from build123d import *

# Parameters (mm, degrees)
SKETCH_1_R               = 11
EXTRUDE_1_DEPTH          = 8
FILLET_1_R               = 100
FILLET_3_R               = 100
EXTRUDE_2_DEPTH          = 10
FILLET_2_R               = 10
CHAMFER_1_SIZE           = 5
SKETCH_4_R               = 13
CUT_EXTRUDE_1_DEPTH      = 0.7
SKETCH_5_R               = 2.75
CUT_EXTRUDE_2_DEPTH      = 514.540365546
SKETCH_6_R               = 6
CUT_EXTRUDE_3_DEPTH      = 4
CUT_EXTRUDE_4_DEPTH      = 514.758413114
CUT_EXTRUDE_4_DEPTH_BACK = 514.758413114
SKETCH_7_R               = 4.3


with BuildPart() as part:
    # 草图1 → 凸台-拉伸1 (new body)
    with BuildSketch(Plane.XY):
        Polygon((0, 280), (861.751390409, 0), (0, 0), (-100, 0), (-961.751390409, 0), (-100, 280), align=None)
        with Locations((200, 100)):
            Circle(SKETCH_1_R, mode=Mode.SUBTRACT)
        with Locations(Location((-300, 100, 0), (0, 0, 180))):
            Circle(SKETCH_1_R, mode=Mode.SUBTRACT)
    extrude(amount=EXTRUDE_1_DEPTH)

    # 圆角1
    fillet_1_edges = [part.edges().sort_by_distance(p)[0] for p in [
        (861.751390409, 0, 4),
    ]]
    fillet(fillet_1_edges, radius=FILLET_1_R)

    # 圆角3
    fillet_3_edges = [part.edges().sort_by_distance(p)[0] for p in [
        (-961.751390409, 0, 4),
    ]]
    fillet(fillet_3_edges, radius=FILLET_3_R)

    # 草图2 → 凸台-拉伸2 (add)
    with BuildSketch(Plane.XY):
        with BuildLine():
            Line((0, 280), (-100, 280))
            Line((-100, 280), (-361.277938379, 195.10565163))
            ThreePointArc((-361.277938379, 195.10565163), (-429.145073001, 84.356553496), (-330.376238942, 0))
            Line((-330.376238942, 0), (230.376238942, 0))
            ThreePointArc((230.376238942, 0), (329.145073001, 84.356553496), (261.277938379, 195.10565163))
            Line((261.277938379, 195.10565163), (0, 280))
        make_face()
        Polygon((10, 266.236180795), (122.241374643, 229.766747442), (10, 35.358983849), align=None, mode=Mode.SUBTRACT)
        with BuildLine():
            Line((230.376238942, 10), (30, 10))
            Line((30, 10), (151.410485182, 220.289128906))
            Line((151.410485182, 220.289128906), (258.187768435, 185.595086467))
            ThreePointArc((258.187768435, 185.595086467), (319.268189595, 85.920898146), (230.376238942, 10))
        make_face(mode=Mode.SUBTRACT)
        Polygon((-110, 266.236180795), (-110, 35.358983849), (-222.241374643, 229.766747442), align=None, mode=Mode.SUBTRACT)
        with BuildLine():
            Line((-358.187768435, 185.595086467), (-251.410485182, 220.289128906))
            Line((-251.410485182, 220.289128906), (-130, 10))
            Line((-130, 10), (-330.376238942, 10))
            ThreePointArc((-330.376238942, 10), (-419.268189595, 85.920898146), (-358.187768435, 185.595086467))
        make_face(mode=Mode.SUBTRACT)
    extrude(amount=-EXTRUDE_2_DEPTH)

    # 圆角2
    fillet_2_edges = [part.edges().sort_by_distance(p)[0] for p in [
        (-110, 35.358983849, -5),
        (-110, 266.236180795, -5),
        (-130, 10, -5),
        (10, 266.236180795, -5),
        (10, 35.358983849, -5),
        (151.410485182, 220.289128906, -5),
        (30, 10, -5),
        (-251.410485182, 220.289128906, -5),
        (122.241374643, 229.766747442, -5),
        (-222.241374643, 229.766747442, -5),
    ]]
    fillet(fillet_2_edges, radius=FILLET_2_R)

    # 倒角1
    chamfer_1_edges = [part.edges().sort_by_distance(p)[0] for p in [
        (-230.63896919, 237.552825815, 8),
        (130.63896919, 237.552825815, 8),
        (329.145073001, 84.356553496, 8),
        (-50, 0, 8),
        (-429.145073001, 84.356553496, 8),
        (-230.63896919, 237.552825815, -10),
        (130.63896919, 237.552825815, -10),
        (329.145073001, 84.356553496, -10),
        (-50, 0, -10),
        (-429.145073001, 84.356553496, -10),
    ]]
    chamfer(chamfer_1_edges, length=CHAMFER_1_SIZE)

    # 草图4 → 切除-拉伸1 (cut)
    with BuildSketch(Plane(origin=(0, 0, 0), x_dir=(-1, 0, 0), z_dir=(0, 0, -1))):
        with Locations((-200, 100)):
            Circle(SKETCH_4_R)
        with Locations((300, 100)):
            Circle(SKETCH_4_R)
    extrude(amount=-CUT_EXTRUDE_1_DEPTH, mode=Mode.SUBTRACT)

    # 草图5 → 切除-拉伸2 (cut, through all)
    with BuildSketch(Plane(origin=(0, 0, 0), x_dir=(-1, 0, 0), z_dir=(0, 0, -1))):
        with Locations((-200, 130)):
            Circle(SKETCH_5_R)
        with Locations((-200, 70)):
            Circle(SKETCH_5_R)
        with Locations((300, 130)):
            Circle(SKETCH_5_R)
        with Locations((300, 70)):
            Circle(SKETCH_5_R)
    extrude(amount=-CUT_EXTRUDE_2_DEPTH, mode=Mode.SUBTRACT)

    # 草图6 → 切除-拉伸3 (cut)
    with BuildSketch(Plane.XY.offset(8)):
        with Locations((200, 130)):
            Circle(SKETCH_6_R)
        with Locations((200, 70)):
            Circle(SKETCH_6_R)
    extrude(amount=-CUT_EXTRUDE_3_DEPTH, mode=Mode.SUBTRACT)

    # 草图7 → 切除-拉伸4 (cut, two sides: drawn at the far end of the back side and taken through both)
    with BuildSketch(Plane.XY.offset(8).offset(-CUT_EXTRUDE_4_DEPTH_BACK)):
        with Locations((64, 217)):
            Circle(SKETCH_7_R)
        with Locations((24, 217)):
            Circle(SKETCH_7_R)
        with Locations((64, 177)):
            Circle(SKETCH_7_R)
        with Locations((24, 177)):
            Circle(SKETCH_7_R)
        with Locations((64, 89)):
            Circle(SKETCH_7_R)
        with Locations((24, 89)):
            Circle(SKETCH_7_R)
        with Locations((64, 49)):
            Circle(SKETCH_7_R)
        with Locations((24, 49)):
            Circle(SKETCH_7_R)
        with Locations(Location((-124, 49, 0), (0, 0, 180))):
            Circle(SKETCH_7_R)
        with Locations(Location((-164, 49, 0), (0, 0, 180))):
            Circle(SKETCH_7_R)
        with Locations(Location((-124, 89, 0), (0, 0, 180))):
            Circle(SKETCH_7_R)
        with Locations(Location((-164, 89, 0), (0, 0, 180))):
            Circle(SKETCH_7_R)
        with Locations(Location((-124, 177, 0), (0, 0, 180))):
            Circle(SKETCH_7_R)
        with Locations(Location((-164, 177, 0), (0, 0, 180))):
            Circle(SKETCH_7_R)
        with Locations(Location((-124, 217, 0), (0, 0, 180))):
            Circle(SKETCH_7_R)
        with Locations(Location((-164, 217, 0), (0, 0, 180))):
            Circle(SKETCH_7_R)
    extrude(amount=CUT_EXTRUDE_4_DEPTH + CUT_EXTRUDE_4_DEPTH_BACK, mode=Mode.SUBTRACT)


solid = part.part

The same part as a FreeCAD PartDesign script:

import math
import FreeCAD as App
import Part
import Sketcher
Q = App.Units.Quantity


def edges_at(feature, points):
    """Names of the edges that pass closest to the given points."""
    edges = feature.Shape.Edges
    near = lambda p: min(range(len(edges)), key=lambda i: edges[i].distToShape(Part.Vertex(*p))[0])
    return sorted({f"Edge{near(p) + 1}" for p in points})


def add_polygon(sketch, points):
    """Adds a closed chain of lines whose ends are joined by coincident constraints."""
    first, n = sketch.GeometryCount, len(points)
    for a, b in zip(points, points[1:] + points[:1]):
        sketch.addGeometry(Part.LineSegment(App.Vector(*a, 0), App.Vector(*b, 0)), False)
    for i in range(n):
        sketch.addConstraint(Sketcher.Constraint("Coincident", first + i, 2, first + (i + 1) % n, 1))

doc = App.newDocument("Part")
params = doc.addObject("Spreadsheet::Sheet", "Params")
for row, (alias, value) in enumerate([
    ("sketch1_diameter", "22 mm"),
    ("sketch1_width", "100 mm"),
    ("pad1_length", "8 mm"),
    ("fillet_radius", "100 mm"),
    ("fillet2_radius", "100 mm"),
    ("sketch2_radius", "100 mm"),
    ("sketch2_radius2", "90 mm"),
    ("sketch2_width", "100 mm"),
    ("pad2_length", "10 mm"),
    ("fillet3_radius", "10 mm"),
    ("chamfer_size", "5 mm"),
    ("sketch3_diameter", "26 mm"),
    ("pocket1_length", "0.7 mm"),
    ("sketch4_diameter", "5.5 mm"),
    ("sketch5_diameter", "12 mm"),
    ("pocket3_length", "4 mm"),
    ("sketch6_diameter", "8.6 mm"),
], start=1):
    params.set(f"A{row}", alias)
    params.set(f"B{row}", "=" + value)
    params.setAlias(f"B{row}", alias)

body = doc.addObject("PartDesign::Body", "Body")

# Sketch on XY plane
sketch1 = body.newObject("Sketcher::SketchObject", "Sketch")
sketch1.AttachmentSupport = (doc.getObject("XY_Plane"), [""])
sketch1.MapMode = "FlatFace"
add_polygon(sketch1, [(862, 0), (0, 280), (-100, 280), (-962, 0)])  # lines 0-3
sketch1.addGeometry(Part.Circle(App.Vector(200, 100, 0), App.Vector(0, 0, 1), 11), False)  # 4
sketch1.addGeometry(Part.Circle(App.Vector(-300, 100, 0), App.Vector(0, 0, 1), 11), False)  # 5
sketch1.addConstraint(Sketcher.Constraint("Horizontal", 1))
sketch1.addConstraint(Sketcher.Constraint("Horizontal", 3))
sketch1.addConstraint(Sketcher.Constraint("Equal", 4, 5))
sketch1.addConstraint(Sketcher.Constraint("PointOnObject", 0, 2, -2))
sketch1.addConstraint(Sketcher.Constraint("PointOnObject", 2, 2, -1))
sketch1.addConstraint(Sketcher.Constraint("Horizontal", 4, 3, 5, 3))
sketch1.addConstraint(Sketcher.Constraint("Equal", 0, 2))
sketch1.addConstraint(Sketcher.Constraint("Diameter", 4, 22.0))
sketch1.addConstraint(Sketcher.Constraint("DistanceX", 1, 2, 1, 1, 100.0))
sketch1.addConstraint(Sketcher.Constraint("Angle", 0, Q("162 deg")))
sketch1.addConstraint(Sketcher.Constraint("DistanceX", -1, 1, 4, 3, 200.0))
sketch1.addConstraint(Sketcher.Constraint("DistanceY", -1, 1, 4, 3, 100.0))
sketch1.addConstraint(Sketcher.Constraint("DistanceX", 5, 3, -1, 1, 300.0))
sketch1.addConstraint(Sketcher.Constraint("DistanceY", -1, 1, 0, 2, 280.0))
sketch1.setExpression("Constraints[11]", "Params.sketch1_diameter")
sketch1.setExpression("Constraints[12]", "Params.sketch1_width")
pad1 = body.newObject("PartDesign::Pad", "Pad")
pad1.Profile = sketch1
pad1.setExpression("Length", "Params.pad1_length")
doc.recompute()

fillet = body.newObject("PartDesign::Fillet", "Fillet")
fillet.Base = (pad1, edges_at(pad1, [(861.751, 0, 4)]))
fillet.setExpression("Radius", "Params.fillet_radius")
doc.recompute()

fillet2 = body.newObject("PartDesign::Fillet", "Fillet001")
fillet2.Base = (fillet, edges_at(fillet, [(-961.751, 0, 4)]))
fillet2.setExpression("Radius", "Params.fillet2_radius")

# Sketch on XY plane
sketch2 = body.newObject("Sketcher::SketchObject", "Sketch001")
sketch2.AttachmentSupport = (doc.getObject("XY_Plane"), [""])
sketch2.MapMode = "FlatFace"
sketch2.addGeometry(Part.LineSegment(App.Vector(0, 280, 0), App.Vector(-100, 280, 0)), False)  # 0
sketch2.addGeometry(Part.LineSegment(App.Vector(-100, 280, 0), App.Vector(-361, 195, 0)), False)  # 1
sketch2.addGeometry(Part.ArcOfCircle(Part.Circle(App.Vector(-330, 100, 0), App.Vector(0, 0, 1), 100), math.radians(108), math.radians(270)), False)  # 2
sketch2.addGeometry(Part.LineSegment(App.Vector(-330, 0, 0), App.Vector(230, 0, 0)), False)  # 3
sketch2.addGeometry(Part.ArcOfCircle(Part.Circle(App.Vector(230, 100, 0), App.Vector(0, 0, 1), 100), math.radians(-90), math.radians(72)), False)  # 4
sketch2.addGeometry(Part.LineSegment(App.Vector(261, 195, 0), App.Vector(0, 280, 0)), False)  # 5
sketch2.addGeometry(Part.ArcOfCircle(Part.Circle(App.Vector(-330, 100, 0), App.Vector(0, 0, 1), 90), math.radians(108), math.radians(270)), False)  # 6
sketch2.addGeometry(Part.LineSegment(App.Vector(-358, 186, 0), App.Vector(-251, 220, 0)), False)  # 7
sketch2.addGeometry(Part.LineSegment(App.Vector(-251, 220, 0), App.Vector(-130, 10, 0)), False)  # 8
sketch2.addGeometry(Part.LineSegment(App.Vector(-130, 10, 0), App.Vector(-330, 10, 0)), False)  # 9
sketch2.addGeometry(Part.ArcOfCircle(Part.Circle(App.Vector(230, 100, 0), App.Vector(0, 0, 1), 90), math.radians(-90), math.radians(72)), False)  # 10
sketch2.addGeometry(Part.LineSegment(App.Vector(230, 10, 0), App.Vector(30, 10, 0)), False)  # 11
sketch2.addGeometry(Part.LineSegment(App.Vector(30, 10, 0), App.Vector(151, 220, 0)), False)  # 12
sketch2.addGeometry(Part.LineSegment(App.Vector(151, 220, 0), App.Vector(258, 186, 0)), False)  # 13
add_polygon(sketch2, [(-222, 230), (-110, 266), (-110, 35)])  # lines 14-16
add_polygon(sketch2, [(10, 35), (10, 266), (122, 230)])  # lines 17-19
sketch2.addConstraint(Sketcher.Constraint("Coincident", 0, 2, 1, 1))
sketch2.addConstraint(Sketcher.Constraint("Tangent", 1, 2, 2, 1))
sketch2.addConstraint(Sketcher.Constraint("Tangent", 2, 2, 3, 1))
sketch2.addConstraint(Sketcher.Constraint("Tangent", 3, 2, 4, 1))
sketch2.addConstraint(Sketcher.Constraint("Tangent", 4, 2, 5, 1))
sketch2.addConstraint(Sketcher.Constraint("Coincident", 5, 2, 0, 1))
sketch2.addConstraint(Sketcher.Constraint("Tangent", 6, 1, 7, 1))
sketch2.addConstraint(Sketcher.Constraint("Coincident", 7, 2, 8, 1))
sketch2.addConstraint(Sketcher.Constraint("Coincident", 8, 2, 9, 1))
sketch2.addConstraint(Sketcher.Constraint("Tangent", 9, 2, 6, 2))
sketch2.addConstraint(Sketcher.Constraint("Tangent", 10, 1, 11, 1))
sketch2.addConstraint(Sketcher.Constraint("Coincident", 11, 2, 12, 1))
sketch2.addConstraint(Sketcher.Constraint("Coincident", 12, 2, 13, 1))
sketch2.addConstraint(Sketcher.Constraint("Tangent", 13, 2, 10, 2))
sketch2.addConstraint(Sketcher.Constraint("Horizontal", 0))
sketch2.addConstraint(Sketcher.Constraint("Horizontal", 3))
sketch2.addConstraint(Sketcher.Constraint("Horizontal", 9))
sketch2.addConstraint(Sketcher.Constraint("Horizontal", 11))
sketch2.addConstraint(Sketcher.Constraint("Vertical", 15))
sketch2.addConstraint(Sketcher.Constraint("Vertical", 17))
sketch2.addConstraint(Sketcher.Constraint("Coincident", 6, 3, 2, 3))
sketch2.addConstraint(Sketcher.Constraint("Coincident", 10, 3, 4, 3))
sketch2.addConstraint(Sketcher.Constraint("Equal", 2, 4))
sketch2.addConstraint(Sketcher.Constraint("Equal", 6, 10))
sketch2.addConstraint(Sketcher.Constraint("PointOnObject", 2, 2, -1))
sketch2.addConstraint(Sketcher.Constraint("PointOnObject", 5, 2, -2))
sketch2.addConstraint(Sketcher.Constraint("Parallel", 1, 7))
sketch2.addConstraint(Sketcher.Constraint("Parallel", 5, 13))
sketch2.addConstraint(Sketcher.Constraint("Parallel", 7, 14))
sketch2.addConstraint(Sketcher.Constraint("Parallel", 8, 16))
sketch2.addConstraint(Sketcher.Constraint("Parallel", 13, 18))
sketch2.addConstraint(Sketcher.Constraint("Parallel", 12, 19))
sketch2.addConstraint(Sketcher.Constraint("Horizontal", 7, 2, 12, 2))
sketch2.addConstraint(Sketcher.Constraint("Horizontal", 14, 2, 17, 2))
sketch2.addConstraint(Sketcher.Constraint("Horizontal", 16, 2, 18, 2))
sketch2.addConstraint(Sketcher.Constraint("Horizontal", 15, 2, 19, 2))
sketch2.addConstraint(Sketcher.Constraint("Equal", 9, 11))
sketch2.addConstraint(Sketcher.Constraint("Radius", 2, 100.0))
sketch2.addConstraint(Sketcher.Constraint("Radius", 6, 90.0))
sketch2.addConstraint(Sketcher.Constraint("DistanceX", 0, 2, 0, 1, 100.0))
sketch2.addConstraint(Sketcher.Constraint("Angle", 1, Q("-162 deg")))
sketch2.addConstraint(Sketcher.Constraint("Angle", 8, Q("-60 deg")))
sketch2.addConstraint(Sketcher.Constraint("DistanceY", -1, 1, 0, 2, 280.0))
sketch2.addConstraint(Sketcher.Constraint("DistanceX", 8, 2, -1, 1, 130.0))
sketch2.addConstraint(Sketcher.Constraint("DistanceX", 14, 2, -1, 1, 110.0))
sketch2.addConstraint(Sketcher.Constraint("DistanceX", -1, 1, 17, 2, 10.0))
sketch2.addConstraint(Sketcher.Constraint("Distance", 16, 224.482749))
sketch2.addConstraint(Sketcher.Constraint("DistanceY", -1, 1, 14, 2, 266.236181))
sketch2.setExpression("Constraints[43]", "Params.sketch2_radius")
sketch2.setExpression("Constraints[44]", "Params.sketch2_radius2")
sketch2.setExpression("Constraints[45]", "Params.sketch2_width")
pad2 = body.newObject("PartDesign::Pad", "Pad001")
pad2.Profile = sketch2
pad2.setExpression("Length", "Params.pad2_length")
pad2.Reversed = True
doc.recompute()

fillet3 = body.newObject("PartDesign::Fillet", "Fillet002")
fillet3.Base = (pad2, edges_at(pad2, [
    (-110, 35.359, -5),
    (-110, 266.236, -5),
    (-130, 10, -5),
    (10, 266.236, -5),
    (10, 35.359, -5),
    (151.41, 220.289, -5),
    (30, 10, -5),
    (-251.41, 220.289, -5),
    (122.241, 229.767, -5),
    (-222.241, 229.767, -5),
]))
fillet3.setExpression("Radius", "Params.fillet3_radius")
doc.recompute()

chamfer = body.newObject("PartDesign::Chamfer", "Chamfer")
chamfer.Base = (fillet3, edges_at(fillet3, [
    (-230.639, 237.553, 8),
    (130.639, 237.553, 8),
    (329.145, 84.357, 8),
    (-50, 0, 8),
    (-429.145, 84.357, 8),
    (-230.639, 237.553, -10),
    (130.639, 237.553, -10),
    (329.145, 84.357, -10),
    (-50, 0, -10),
    (-429.145, 84.357, -10),
]))
chamfer.setExpression("Size", "Params.chamfer_size")

# Sketch on XY plane
sketch3 = body.newObject("Sketcher::SketchObject", "Sketch002")
sketch3.AttachmentSupport = (doc.getObject("XY_Plane"), [""])
sketch3.MapMode = "FlatFace"
sketch3.addGeometry(Part.Circle(App.Vector(200, 100, 0), App.Vector(0, 0, 1), 13), False)
sketch3.addGeometry(Part.Circle(App.Vector(-300, 100, 0), App.Vector(0, 0, 1), 13), False)
sketch3.addConstraint(Sketcher.Constraint("Equal", 0, 1))
sketch3.addConstraint(Sketcher.Constraint("Horizontal", 0, 3, 1, 3))
sketch3.addConstraint(Sketcher.Constraint("Diameter", 0, 26.0))
sketch3.addConstraint(Sketcher.Constraint("DistanceX", -1, 1, 0, 3, 200.0))
sketch3.addConstraint(Sketcher.Constraint("DistanceY", -1, 1, 0, 3, 100.0))
sketch3.addConstraint(Sketcher.Constraint("DistanceX", 1, 3, -1, 1, 300.0))
sketch3.setExpression("Constraints[2]", "Params.sketch3_diameter")
pocket1 = body.newObject("PartDesign::Pocket", "Pocket")
pocket1.Profile = sketch3
pocket1.setExpression("Length", "Params.pocket1_length")
pocket1.Reversed = True

# Sketch on XY plane
sketch4 = body.newObject("Sketcher::SketchObject", "Sketch003")
sketch4.AttachmentSupport = (doc.getObject("XY_Plane"), [""])
sketch4.MapMode = "FlatFace"
sketch4.addGeometry(Part.Circle(App.Vector(200, 130, 0), App.Vector(0, 0, 1), 2.8), False)
sketch4.addGeometry(Part.Circle(App.Vector(200, 70, 0), App.Vector(0, 0, 1), 2.8), False)
sketch4.addGeometry(Part.Circle(App.Vector(-300, 130, 0), App.Vector(0, 0, 1), 2.8), False)
sketch4.addGeometry(Part.Circle(App.Vector(-300, 70, 0), App.Vector(0, 0, 1), 2.8), False)
sketch4.addConstraint(Sketcher.Constraint("Equal", 0, 1))
sketch4.addConstraint(Sketcher.Constraint("Equal", 1, 2))
sketch4.addConstraint(Sketcher.Constraint("Equal", 2, 3))
sketch4.addConstraint(Sketcher.Constraint("Horizontal", 0, 3, 2, 3))
sketch4.addConstraint(Sketcher.Constraint("Horizontal", 1, 3, 3, 3))
sketch4.addConstraint(Sketcher.Constraint("Vertical", 0, 3, 1, 3))
sketch4.addConstraint(Sketcher.Constraint("Vertical", 2, 3, 3, 3))
sketch4.addConstraint(Sketcher.Constraint("Diameter", 0, 5.5))
sketch4.addConstraint(Sketcher.Constraint("DistanceX", -1, 1, 0, 3, 200.0))
sketch4.addConstraint(Sketcher.Constraint("DistanceY", -1, 1, 0, 3, 130.0))
sketch4.addConstraint(Sketcher.Constraint("DistanceY", -1, 1, 1, 3, 70.0))
sketch4.addConstraint(Sketcher.Constraint("DistanceX", 2, 3, -1, 1, 300.0))
sketch4.setExpression("Constraints[7]", "Params.sketch4_diameter")
pocket2 = body.newObject("PartDesign::Pocket", "Pocket001")
pocket2.Profile = sketch4
pocket2.Type = "ThroughAll"
pocket2.Reversed = True

# Sketch on XY plane
sketch5 = body.newObject("Sketcher::SketchObject", "Sketch004")
sketch5.AttachmentSupport = (doc.getObject("XY_Plane"), [""])
sketch5.MapMode = "FlatFace"
sketch5.AttachmentOffset = App.Placement(App.Vector(0, 0, 8), App.Rotation())
sketch5.addGeometry(Part.Circle(App.Vector(200, 130, 0), App.Vector(0, 0, 1), 6), False)
sketch5.addGeometry(Part.Circle(App.Vector(200, 70, 0), App.Vector(0, 0, 1), 6), False)
sketch5.addConstraint(Sketcher.Constraint("Equal", 0, 1))
sketch5.addConstraint(Sketcher.Constraint("Vertical", 0, 3, 1, 3))
sketch5.addConstraint(Sketcher.Constraint("Diameter", 0, 12.0))
sketch5.addConstraint(Sketcher.Constraint("DistanceX", -1, 1, 0, 3, 200.0))
sketch5.addConstraint(Sketcher.Constraint("DistanceY", -1, 1, 0, 3, 130.0))
sketch5.addConstraint(Sketcher.Constraint("DistanceY", -1, 1, 1, 3, 70.0))
sketch5.setExpression("Constraints[2]", "Params.sketch5_diameter")
pocket3 = body.newObject("PartDesign::Pocket", "Pocket002")
pocket3.Profile = sketch5
pocket3.setExpression("Length", "Params.pocket3_length")

# Sketch on XY plane
sketch6 = body.newObject("Sketcher::SketchObject", "Sketch005")
sketch6.AttachmentSupport = (doc.getObject("XY_Plane"), [""])
sketch6.MapMode = "FlatFace"
sketch6.AttachmentOffset = App.Placement(App.Vector(0, 0, 8), App.Rotation())
sketch6.addGeometry(Part.Circle(App.Vector(64, 217, 0), App.Vector(0, 0, 1), 4.3), False)
sketch6.addGeometry(Part.Circle(App.Vector(24, 217, 0), App.Vector(0, 0, 1), 4.3), False)
sketch6.addGeometry(Part.Circle(App.Vector(64, 177, 0), App.Vector(0, 0, 1), 4.3), False)
sketch6.addGeometry(Part.Circle(App.Vector(24, 177, 0), App.Vector(0, 0, 1), 4.3), False)
sketch6.addGeometry(Part.Circle(App.Vector(64, 89, 0), App.Vector(0, 0, 1), 4.3), False)
sketch6.addGeometry(Part.Circle(App.Vector(24, 89, 0), App.Vector(0, 0, 1), 4.3), False)
sketch6.addGeometry(Part.Circle(App.Vector(64, 49, 0), App.Vector(0, 0, 1), 4.3), False)
sketch6.addGeometry(Part.Circle(App.Vector(24, 49, 0), App.Vector(0, 0, 1), 4.3), False)
sketch6.addGeometry(Part.Circle(App.Vector(-124, 49, 0), App.Vector(0, 0, 1), 4.3), False)
sketch6.addGeometry(Part.Circle(App.Vector(-164, 49, 0), App.Vector(0, 0, 1), 4.3), False)
sketch6.addGeometry(Part.Circle(App.Vector(-124, 89, 0), App.Vector(0, 0, 1), 4.3), False)
sketch6.addGeometry(Part.Circle(App.Vector(-164, 89, 0), App.Vector(0, 0, 1), 4.3), False)
sketch6.addGeometry(Part.Circle(App.Vector(-124, 177, 0), App.Vector(0, 0, 1), 4.3), False)
sketch6.addGeometry(Part.Circle(App.Vector(-164, 177, 0), App.Vector(0, 0, 1), 4.3), False)
sketch6.addGeometry(Part.Circle(App.Vector(-124, 217, 0), App.Vector(0, 0, 1), 4.3), False)
sketch6.addGeometry(Part.Circle(App.Vector(-164, 217, 0), App.Vector(0, 0, 1), 4.3), False)
sketch6.addConstraint(Sketcher.Constraint("Equal", 0, 1))
sketch6.addConstraint(Sketcher.Constraint("Equal", 1, 2))
sketch6.addConstraint(Sketcher.Constraint("Equal", 2, 3))
sketch6.addConstraint(Sketcher.Constraint("Equal", 3, 4))
sketch6.addConstraint(Sketcher.Constraint("Equal", 4, 5))
sketch6.addConstraint(Sketcher.Constraint("Equal", 5, 6))
sketch6.addConstraint(Sketcher.Constraint("Equal", 6, 7))
sketch6.addConstraint(Sketcher.Constraint("Equal", 7, 8))
sketch6.addConstraint(Sketcher.Constraint("Equal", 8, 9))
sketch6.addConstraint(Sketcher.Constraint("Equal", 9, 10))
sketch6.addConstraint(Sketcher.Constraint("Equal", 10, 11))
sketch6.addConstraint(Sketcher.Constraint("Equal", 11, 12))
sketch6.addConstraint(Sketcher.Constraint("Equal", 12, 13))
sketch6.addConstraint(Sketcher.Constraint("Equal", 13, 14))
sketch6.addConstraint(Sketcher.Constraint("Equal", 14, 15))
sketch6.addConstraint(Sketcher.Constraint("Horizontal", 0, 3, 1, 3))
sketch6.addConstraint(Sketcher.Constraint("Horizontal", 2, 3, 3, 3))
sketch6.addConstraint(Sketcher.Constraint("Horizontal", 4, 3, 5, 3))
sketch6.addConstraint(Sketcher.Constraint("Horizontal", 6, 3, 7, 3))
sketch6.addConstraint(Sketcher.Constraint("Horizontal", 7, 3, 8, 3))
sketch6.addConstraint(Sketcher.Constraint("Horizontal", 8, 3, 9, 3))
sketch6.addConstraint(Sketcher.Constraint("Horizontal", 5, 3, 10, 3))
sketch6.addConstraint(Sketcher.Constraint("Horizontal", 10, 3, 11, 3))
sketch6.addConstraint(Sketcher.Constraint("Horizontal", 3, 3, 12, 3))
sketch6.addConstraint(Sketcher.Constraint("Horizontal", 12, 3, 13, 3))
sketch6.addConstraint(Sketcher.Constraint("Horizontal", 1, 3, 14, 3))
sketch6.addConstraint(Sketcher.Constraint("Horizontal", 14, 3, 15, 3))
sketch6.addConstraint(Sketcher.Constraint("Vertical", 0, 3, 2, 3))
sketch6.addConstraint(Sketcher.Constraint("Vertical", 1, 3, 3, 3))
sketch6.addConstraint(Sketcher.Constraint("Vertical", 2, 3, 4, 3))
sketch6.addConstraint(Sketcher.Constraint("Vertical", 3, 3, 5, 3))
sketch6.addConstraint(Sketcher.Constraint("Vertical", 4, 3, 6, 3))
sketch6.addConstraint(Sketcher.Constraint("Vertical", 5, 3, 7, 3))
sketch6.addConstraint(Sketcher.Constraint("Vertical", 8, 3, 10, 3))
sketch6.addConstraint(Sketcher.Constraint("Vertical", 9, 3, 11, 3))
sketch6.addConstraint(Sketcher.Constraint("Vertical", 10, 3, 12, 3))
sketch6.addConstraint(Sketcher.Constraint("Vertical", 11, 3, 13, 3))
sketch6.addConstraint(Sketcher.Constraint("Vertical", 12, 3, 14, 3))
sketch6.addConstraint(Sketcher.Constraint("Vertical", 13, 3, 15, 3))
sketch6.addConstraint(Sketcher.Constraint("Diameter", 0, 8.6))
sketch6.addConstraint(Sketcher.Constraint("DistanceX", -1, 1, 0, 3, 64.0))
sketch6.addConstraint(Sketcher.Constraint("DistanceY", -1, 1, 0, 3, 217.0))
sketch6.addConstraint(Sketcher.Constraint("DistanceX", -1, 1, 1, 3, 24.0))
sketch6.addConstraint(Sketcher.Constraint("DistanceY", -1, 1, 2, 3, 177.0))
sketch6.addConstraint(Sketcher.Constraint("DistanceY", -1, 1, 4, 3, 89.0))
sketch6.addConstraint(Sketcher.Constraint("DistanceY", -1, 1, 6, 3, 49.0))
sketch6.addConstraint(Sketcher.Constraint("DistanceX", 8, 3, -1, 1, 124.0))
sketch6.addConstraint(Sketcher.Constraint("DistanceX", 9, 3, -1, 1, 164.0))
sketch6.setExpression("Constraints[39]", "Params.sketch6_diameter")
pocket4 = body.newObject("PartDesign::Pocket", "Pocket003")
pocket4.Profile = sketch6
pocket4.Type = "ThroughAll"
pocket4.Midplane = True

doc.recompute()
